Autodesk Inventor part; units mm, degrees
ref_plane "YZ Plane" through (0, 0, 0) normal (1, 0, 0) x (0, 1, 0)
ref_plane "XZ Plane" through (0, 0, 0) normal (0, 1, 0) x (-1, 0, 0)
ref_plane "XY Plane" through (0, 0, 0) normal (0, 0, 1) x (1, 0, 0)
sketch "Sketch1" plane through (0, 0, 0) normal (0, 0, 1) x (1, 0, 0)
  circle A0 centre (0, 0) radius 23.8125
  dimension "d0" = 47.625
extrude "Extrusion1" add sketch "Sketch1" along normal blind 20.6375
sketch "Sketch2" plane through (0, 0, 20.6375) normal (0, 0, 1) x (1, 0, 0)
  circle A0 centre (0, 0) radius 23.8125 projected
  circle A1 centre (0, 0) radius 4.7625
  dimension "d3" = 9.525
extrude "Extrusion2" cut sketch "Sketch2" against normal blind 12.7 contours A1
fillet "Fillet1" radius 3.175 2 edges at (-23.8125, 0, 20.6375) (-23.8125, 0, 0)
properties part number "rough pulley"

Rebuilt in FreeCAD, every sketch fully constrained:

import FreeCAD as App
import Part
import Sketcher
from FreeCAD import Vector
Q = App.Units.Quantity


def edges_at(feature, points):
    """Names of the edges that pass closest to the given points."""
    edges = feature.Shape.Edges
    near = lambda p: min(range(len(edges)), key=lambda i: edges[i].distToShape(Part.Vertex(*p))[0])
    return sorted({f"Edge{near(p) + 1}" for p in points})

doc = App.newDocument("Part")
body = doc.addObject("PartDesign::Body", "Body")

# Sketch on XY plane
sketch1 = body.newObject("Sketcher::SketchObject", "Sketch")
sketch1.AttachmentSupport = (doc.getObject("XY_Plane"), [""])
sketch1.MapMode = "FlatFace"
sketch1.addGeometry(Part.Circle(Vector(0, 0, 0), Vector(0, 0, 1), 24), False)
sketch1.addConstraint([
    Sketcher.Constraint("Coincident", 0, 3, -1, 1),
    Sketcher.Constraint("Diameter", 0, Q("1.875 in")),
])
pad1 = body.newObject("PartDesign::Pad", "Pad")
pad1.Profile = sketch1
pad1.Length = Q("0.8125 in")

# Sketch on XY plane
sketch2 = body.newObject("Sketcher::SketchObject", "Sketch001")
sketch2.AttachmentSupport = (doc.getObject("XY_Plane"), [""])
sketch2.MapMode = "FlatFace"
sketch2.AttachmentOffset = App.Placement(Vector(0, 0, 0.8125 * 25.4), App.Rotation())
sketch2.addGeometry(Part.Circle(Vector(0, 0, 0), Vector(0, 0, 1), 4.8), False)
sketch2.addConstraint([
    Sketcher.Constraint("Coincident", 0, 3, -1, 1),
    Sketcher.Constraint("Diameter", 0, Q("0.375 in")),
])
pocket1 = body.newObject("PartDesign::Pocket", "Pocket")
pocket1.Profile = sketch2
pocket1.Length = Q("0.5 in")
doc.recompute()

fillet = body.newObject("PartDesign::Fillet", "Fillet")
fillet.Base = (pocket1, edges_at(pocket1, [(-23.812, 0, 20.637), (-23.812, 0, 0)]))
fillet.Radius = Q("0.125 in")

doc.recompute()
